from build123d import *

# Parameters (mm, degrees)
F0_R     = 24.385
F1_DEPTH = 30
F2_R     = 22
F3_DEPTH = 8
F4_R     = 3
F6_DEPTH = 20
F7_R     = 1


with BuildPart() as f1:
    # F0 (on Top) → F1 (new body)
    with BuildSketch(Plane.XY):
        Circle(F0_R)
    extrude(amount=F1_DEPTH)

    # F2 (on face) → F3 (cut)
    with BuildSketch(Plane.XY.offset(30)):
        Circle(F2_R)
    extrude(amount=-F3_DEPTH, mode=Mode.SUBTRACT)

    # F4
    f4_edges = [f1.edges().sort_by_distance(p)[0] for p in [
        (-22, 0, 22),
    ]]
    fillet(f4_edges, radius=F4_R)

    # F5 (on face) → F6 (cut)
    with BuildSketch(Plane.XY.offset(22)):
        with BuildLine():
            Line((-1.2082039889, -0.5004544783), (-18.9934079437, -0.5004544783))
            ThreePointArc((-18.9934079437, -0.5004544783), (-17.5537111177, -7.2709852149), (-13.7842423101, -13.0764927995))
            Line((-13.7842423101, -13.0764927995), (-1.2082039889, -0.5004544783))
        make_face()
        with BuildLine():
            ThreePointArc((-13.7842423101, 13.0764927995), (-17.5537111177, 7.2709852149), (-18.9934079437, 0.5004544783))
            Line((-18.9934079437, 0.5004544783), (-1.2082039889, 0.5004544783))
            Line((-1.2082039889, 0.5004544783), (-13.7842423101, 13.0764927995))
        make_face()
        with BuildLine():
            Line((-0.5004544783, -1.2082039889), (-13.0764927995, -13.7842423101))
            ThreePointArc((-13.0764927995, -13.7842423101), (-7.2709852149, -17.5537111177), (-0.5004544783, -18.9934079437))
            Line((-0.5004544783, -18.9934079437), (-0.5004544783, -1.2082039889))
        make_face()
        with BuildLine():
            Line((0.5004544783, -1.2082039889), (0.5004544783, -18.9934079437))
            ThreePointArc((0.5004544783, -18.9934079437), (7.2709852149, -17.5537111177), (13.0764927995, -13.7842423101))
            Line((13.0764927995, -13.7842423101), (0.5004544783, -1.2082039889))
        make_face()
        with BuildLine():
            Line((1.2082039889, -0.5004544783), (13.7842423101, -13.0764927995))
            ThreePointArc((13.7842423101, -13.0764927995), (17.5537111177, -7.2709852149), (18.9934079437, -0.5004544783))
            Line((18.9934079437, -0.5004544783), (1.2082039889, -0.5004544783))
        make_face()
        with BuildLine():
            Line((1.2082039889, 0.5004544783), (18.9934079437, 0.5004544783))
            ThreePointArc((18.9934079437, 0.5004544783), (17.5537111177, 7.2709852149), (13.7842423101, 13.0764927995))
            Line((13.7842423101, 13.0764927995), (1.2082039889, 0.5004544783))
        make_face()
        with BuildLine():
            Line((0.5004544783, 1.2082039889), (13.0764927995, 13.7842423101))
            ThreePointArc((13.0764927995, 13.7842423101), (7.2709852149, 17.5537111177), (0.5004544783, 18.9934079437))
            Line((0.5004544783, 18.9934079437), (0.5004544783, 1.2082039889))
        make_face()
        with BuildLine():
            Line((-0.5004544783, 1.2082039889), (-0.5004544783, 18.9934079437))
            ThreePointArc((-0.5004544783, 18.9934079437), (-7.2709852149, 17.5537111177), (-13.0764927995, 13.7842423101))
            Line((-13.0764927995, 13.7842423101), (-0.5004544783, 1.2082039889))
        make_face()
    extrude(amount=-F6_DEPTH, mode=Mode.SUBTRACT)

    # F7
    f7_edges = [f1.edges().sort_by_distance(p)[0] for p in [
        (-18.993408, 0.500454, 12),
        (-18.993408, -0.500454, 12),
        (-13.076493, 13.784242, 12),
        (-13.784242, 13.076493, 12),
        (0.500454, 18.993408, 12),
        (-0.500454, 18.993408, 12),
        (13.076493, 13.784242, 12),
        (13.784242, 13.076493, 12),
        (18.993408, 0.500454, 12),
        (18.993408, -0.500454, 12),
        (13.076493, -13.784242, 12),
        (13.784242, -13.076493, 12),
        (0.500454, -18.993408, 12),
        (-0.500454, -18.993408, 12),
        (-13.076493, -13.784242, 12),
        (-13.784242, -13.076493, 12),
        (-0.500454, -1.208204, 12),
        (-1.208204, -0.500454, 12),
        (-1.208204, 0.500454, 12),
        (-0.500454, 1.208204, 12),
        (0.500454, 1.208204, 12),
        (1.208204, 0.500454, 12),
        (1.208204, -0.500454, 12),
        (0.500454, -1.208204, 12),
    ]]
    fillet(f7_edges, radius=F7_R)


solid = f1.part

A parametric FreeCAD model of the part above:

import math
import FreeCAD as App
import Part
import Sketcher

V = App.Vector
Q = App.Units.Quantity


def edges_at(feature, points):
    """Names of the edges that pass closest to the given points."""
    edges = feature.Shape.Edges
    near = lambda p: min(range(len(edges)), key=lambda i: edges[i].distToShape(Part.Vertex(*p))[0])
    return sorted({f"Edge{near(p) + 1}" for p in points})

doc = App.newDocument("Part")
body = doc.addObject("PartDesign::Body", "Body")

# Sketch on XY plane
sketch1 = doc.addObject("Sketcher::SketchObject", "Sketch")
body.addObject(sketch1)
sketch1.AttachmentSupport = (doc.XY_Plane, [""])
sketch1.MapMode = "FlatFace"
sketch1.addGeometry(Part.Circle(V(0, 0, 0), V(0, 0, 1), 24), False)
sketch1.addConstraint(Sketcher.Constraint("Coincident", 0, 3, -1, 1))
sketch1.addConstraint(Sketcher.Constraint("Diameter", 0, Q("48.77 mm")))
pad1 = doc.addObject("PartDesign::Pad", "Pad")
body.addObject(pad1)
pad1.Profile = sketch1
pad1.Length = 30

# Sketch on XY plane
sketch2 = doc.addObject("Sketcher::SketchObject", "Sketch001")
body.addObject(sketch2)
sketch2.AttachmentSupport = (doc.XY_Plane, [""])
sketch2.MapMode = "FlatFace"
sketch2.AttachmentOffset = App.Placement(V(0, 0, 30), App.Rotation())
sketch2.addGeometry(Part.Circle(V(0, 0, 0), V(0, 0, 1), 22), False)
sketch2.addConstraint(Sketcher.Constraint("Coincident", 0, 3, -1, 1))
sketch2.addConstraint(Sketcher.Constraint("Diameter", 0, Q("44 mm")))
pocket1 = doc.addObject("PartDesign::Pocket", "Pocket")
body.addObject(pocket1)
pocket1.Profile = sketch2
pocket1.Length = 8
doc.recompute()

fillet = doc.addObject("PartDesign::Fillet", "Fillet")
body.addObject(fillet)
fillet.Base = (pocket1, edges_at(pocket1, [(-22, 0, 22)]))
fillet.Radius = 3

# Sketch on XY plane
sketch3 = doc.addObject("Sketcher::SketchObject", "Sketch002")
body.addObject(sketch3)
sketch3.AttachmentSupport = (doc.XY_Plane, [""])
sketch3.MapMode = "FlatFace"
sketch3.AttachmentOffset = App.Placement(V(0, 0, 22), App.Rotation())
sketch3.addGeometry(Part.LineSegment(V(-1, -1, 0), V(-19, -1, 0)), False)
sketch3.addGeometry(Part.ArcOfCircle(Part.Circle(V(0, 0, 0), V(0, 0, 1), 19), math.radians(-178), math.radians(-137)), False)
sketch3.addGeometry(Part.LineSegment(V(-14, -13, 0), V(-1, -1, 0)), False)
sketch3.addGeometry(Part.ArcOfCircle(Part.Circle(V(0, 0, 0), V(0, 0, 1), 19), math.radians(137), math.radians(178)), False)
sketch3.addGeometry(Part.LineSegment(V(-19, 1, 0), V(-1, 1, 0)), False)
sketch3.addGeometry(Part.LineSegment(V(-1, 1, 0), V(-14, 13, 0)), False)
sketch3.addGeometry(Part.LineSegment(V(-1, -1, 0), V(-13, -14, 0)), False)
sketch3.addGeometry(Part.ArcOfCircle(Part.Circle(V(0, 0, 0), V(0, 0, 1), 19), math.radians(-133), math.radians(-92)), False)
sketch3.addGeometry(Part.LineSegment(V(-1, -19, 0), V(-1, -1, 0)), False)
sketch3.addGeometry(Part.LineSegment(V(1, -1, 0), V(1, -19, 0)), False)
sketch3.addGeometry(Part.ArcOfCircle(Part.Circle(V(0, 0, 0), V(0, 0, 1), 19), math.radians(-88), math.radians(-47)), False)
sketch3.addGeometry(Part.LineSegment(V(13, -14, 0), V(1, -1, 0)), False)
sketch3.addGeometry(Part.LineSegment(V(1, -1, 0), V(14, -13, 0)), False)
sketch3.addGeometry(Part.ArcOfCircle(Part.Circle(V(0, 0, 0), V(0, 0, 1), 19), math.radians(-43), math.radians(-2)), False)
sketch3.addGeometry(Part.LineSegment(V(19, -1, 0), V(1, -1, 0)), False)
sketch3.addGeometry(Part.LineSegment(V(1, 1, 0), V(19, 1, 0)), False)
sketch3.addGeometry(Part.ArcOfCircle(Part.Circle(V(0, 0, 0), V(0, 0, 1), 19), math.radians(2), math.radians(43)), False)
sketch3.addGeometry(Part.LineSegment(V(14, 13, 0), V(1, 1, 0)), False)
sketch3.addGeometry(Part.LineSegment(V(1, 1, 0), V(13, 14, 0)), False)
sketch3.addGeometry(Part.ArcOfCircle(Part.Circle(V(0, 0, 0), V(0, 0, 1), 19), math.radians(47), math.radians(88)), False)
sketch3.addGeometry(Part.LineSegment(V(1, 19, 0), V(1, 1, 0)), False)
sketch3.addGeometry(Part.LineSegment(V(-1, 1, 0), V(-1, 19, 0)), False)
sketch3.addGeometry(Part.ArcOfCircle(Part.Circle(V(0, 0, 0), V(0, 0, 1), 19), math.radians(92), math.radians(133)), False)
sketch3.addGeometry(Part.LineSegment(V(-13, 14, 0), V(-1, 1, 0)), False)
sketch3.addConstraint(Sketcher.Constraint("Coincident", 0, 2, 1, 1))
sketch3.addConstraint(Sketcher.Constraint("Coincident", 1, 2, 2, 1))
sketch3.addConstraint(Sketcher.Constraint("Coincident", 2, 2, 0, 1))
sketch3.addConstraint(Sketcher.Constraint("Coincident", 3, 2, 4, 1))
sketch3.addConstraint(Sketcher.Constraint("Coincident", 4, 2, 5, 1))
sketch3.addConstraint(Sketcher.Constraint("Coincident", 5, 2, 3, 1))
sketch3.addConstraint(Sketcher.Constraint("Coincident", 6, 2, 7, 1))
sketch3.addConstraint(Sketcher.Constraint("Coincident", 7, 2, 8, 1))
sketch3.addConstraint(Sketcher.Constraint("Coincident", 8, 2, 6, 1))
sketch3.addConstraint(Sketcher.Constraint("Coincident", 9, 2, 10, 1))
sketch3.addConstraint(Sketcher.Constraint("Coincident", 10, 2, 11, 1))
sketch3.addConstraint(Sketcher.Constraint("Coincident", 11, 2, 9, 1))
sketch3.addConstraint(Sketcher.Constraint("Coincident", 12, 2, 13, 1))
sketch3.addConstraint(Sketcher.Constraint("Coincident", 13, 2, 14, 1))
sketch3.addConstraint(Sketcher.Constraint("Coincident", 14, 2, 12, 1))
sketch3.addConstraint(Sketcher.Constraint("Coincident", 15, 2, 16, 1))
sketch3.addConstraint(Sketcher.Constraint("Coincident", 16, 2, 17, 1))
sketch3.addConstraint(Sketcher.Constraint("Coincident", 17, 2, 15, 1))
sketch3.addConstraint(Sketcher.Constraint("Coincident", 18, 2, 19, 1))
sketch3.addConstraint(Sketcher.Constraint("Coincident", 19, 2, 20, 1))
sketch3.addConstraint(Sketcher.Constraint("Coincident", 20, 2, 18, 1))
sketch3.addConstraint(Sketcher.Constraint("Coincident", 21, 2, 22, 1))
sketch3.addConstraint(Sketcher.Constraint("Coincident", 22, 2, 23, 1))
sketch3.addConstraint(Sketcher.Constraint("Coincident", 23, 2, 21, 1))
sketch3.addConstraint(Sketcher.Constraint("Horizontal", 0))
sketch3.addConstraint(Sketcher.Constraint("Horizontal", 4))
sketch3.addConstraint(Sketcher.Constraint("Vertical", 8))
sketch3.addConstraint(Sketcher.Constraint("Vertical", 9))
sketch3.addConstraint(Sketcher.Constraint("Horizontal", 14))
sketch3.addConstraint(Sketcher.Constraint("Horizontal", 15))
sketch3.addConstraint(Sketcher.Constraint("Vertical", 20))
sketch3.addConstraint(Sketcher.Constraint("Vertical", 21))
sketch3.addConstraint(Sketcher.Constraint("Coincident", 1, 3, -1, 1))
sketch3.addConstraint(Sketcher.Constraint("Coincident", 3, 3, -1, 1))
sketch3.addConstraint(Sketcher.Constraint("Coincident", 7, 3, -1, 1))
sketch3.addConstraint(Sketcher.Constraint("Coincident", 10, 3, -1, 1))
sketch3.addConstraint(Sketcher.Constraint("Coincident", 13, 3, -1, 1))
sketch3.addConstraint(Sketcher.Constraint("Coincident", 16, 3, -1, 1))
sketch3.addConstraint(Sketcher.Constraint("Coincident", 19, 3, -1, 1))
sketch3.addConstraint(Sketcher.Constraint("Coincident", 22, 3, -1, 1))
sketch3.addConstraint(Sketcher.Constraint("Equal", 1, 3))
sketch3.addConstraint(Sketcher.Constraint("Equal", 3, 7))
sketch3.addConstraint(Sketcher.Constraint("Equal", 7, 10))
sketch3.addConstraint(Sketcher.Constraint("Equal", 10, 13))
sketch3.addConstraint(Sketcher.Constraint("Equal", 13, 16))
sketch3.addConstraint(Sketcher.Constraint("Equal", 16, 19))
sketch3.addConstraint(Sketcher.Constraint("Equal", 19, 22))
sketch3.addConstraint(Sketcher.Constraint("Symmetric", 4, 2, 14, 2, -1, 1))
sketch3.addConstraint(Sketcher.Constraint("Symmetric", 2, 2, 17, 2, -1, 1))
sketch3.addConstraint(Sketcher.Constraint("Symmetric", 8, 2, 20, 2, -1, 1))
sketch3.addConstraint(Sketcher.Constraint("Symmetric", 11, 2, 23, 2, -1, 1))
sketch3.addConstraint(Sketcher.Constraint("Symmetric", 8, 2, 11, 2, -2))
sketch3.addConstraint(Sketcher.Constraint("Symmetric", 2, 2, 14, 2, -2))
sketch3.addConstraint(Sketcher.Constraint("Perpendicular", 2, 5))
sketch3.addConstraint(Sketcher.Constraint("Perpendicular", 5, 6))
sketch3.addConstraint(Sketcher.Constraint("Perpendicular", 6, 11))
sketch3.addConstraint(Sketcher.Constraint("Parallel", 11, 12))
sketch3.addConstraint(Sketcher.Constraint("Perpendicular", 12, 17))
sketch3.addConstraint(Sketcher.Constraint("Parallel", 17, 18))
sketch3.addConstraint(Sketcher.Constraint("Perpendicular", 18, 23))
sketch3.addConstraint(Sketcher.Constraint("Horizontal", 6, 2, 10, 2))
sketch3.addConstraint(Sketcher.Constraint("Equal", 15, 8))
sketch3.addConstraint(Sketcher.Constraint("Equal", 5, 6))
sketch3.addConstraint(Sketcher.Constraint("Radius", 1, Q("19 mm")))
sketch3.addConstraint(Sketcher.Constraint("DistanceX", 0, 2, 0, 1, Q("17.785204 mm")))
sketch3.addConstraint(Sketcher.Constraint("DistanceY", 1, 2, 0, 2, Q("12.576038 mm")))
pocket2 = doc.addObject("PartDesign::Pocket", "Pocket001")
body.addObject(pocket2)
pocket2.Profile = sketch3
pocket2.Length = 20
doc.recompute()

fillet2 = doc.addObject("PartDesign::Fillet", "Fillet001")
body.addObject(fillet2)
fillet2.Base = (pocket2, edges_at(pocket2, [
    (-18.993, 0.5, 12),
    (-18.993, -0.5, 12),
    (-13.076, 13.784, 12),
    (-13.784, 13.076, 12),
    (0.5, 18.993, 12),
    (-0.5, 18.993, 12),
    (13.076, 13.784, 12),
    (13.784, 13.076, 12),
    (18.993, 0.5, 12),
    (18.993, -0.5, 12),
    (13.076, -13.784, 12),
    (13.784, -13.076, 12),
    (0.5, -18.993, 12),
    (-0.5, -18.993, 12),
    (-13.076, -13.784, 12),
    (-13.784, -13.076, 12),
    (-0.5, -1.208, 12),
    (-1.208, -0.5, 12),
    (-1.208, 0.5, 12),
    (-0.5, 1.208, 12),
    (0.5, 1.208, 12),
    (1.208, 0.5, 12),
    (1.208, -0.5, 12),
    (0.5, -1.208, 12),
]))
fillet2.Radius = 1

doc.recompute()
